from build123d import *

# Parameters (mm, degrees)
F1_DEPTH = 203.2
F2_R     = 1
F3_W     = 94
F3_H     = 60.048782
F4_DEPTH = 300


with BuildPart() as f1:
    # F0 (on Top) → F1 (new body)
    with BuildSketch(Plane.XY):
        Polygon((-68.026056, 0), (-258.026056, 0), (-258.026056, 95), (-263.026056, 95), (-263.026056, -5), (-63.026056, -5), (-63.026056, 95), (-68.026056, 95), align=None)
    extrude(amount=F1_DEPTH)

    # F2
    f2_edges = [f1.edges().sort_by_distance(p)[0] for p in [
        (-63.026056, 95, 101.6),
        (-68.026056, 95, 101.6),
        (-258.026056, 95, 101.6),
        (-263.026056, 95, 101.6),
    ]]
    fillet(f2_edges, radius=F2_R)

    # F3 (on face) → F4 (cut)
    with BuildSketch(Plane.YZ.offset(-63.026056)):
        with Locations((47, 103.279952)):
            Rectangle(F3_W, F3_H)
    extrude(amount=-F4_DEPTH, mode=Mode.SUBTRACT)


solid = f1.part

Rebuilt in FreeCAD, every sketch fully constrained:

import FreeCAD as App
import Part
import Sketcher

V = App.Vector
Q = App.Units.Quantity


def edges_at(feature, points):
    """Names of the edges that pass closest to the given points."""
    edges = feature.Shape.Edges
    near = lambda p: min(range(len(edges)), key=lambda i: edges[i].distToShape(Part.Vertex(*p))[0])
    return sorted({f"Edge{near(p) + 1}" for p in points})

doc = App.newDocument("Part")
body = doc.addObject("PartDesign::Body", "Body")

sketch1 = doc.addObject("Sketcher::SketchObject", "Sketch")
body.addObject(sketch1)
sketch1.AttachmentSupport = (doc.XY_Plane, [""])
sketch1.MapMode = "FlatFace"
sketch1.addGeometry([
    Part.LineSegment(V(-68, 0, 0), V(-258, 0, 0)),
    Part.LineSegment(V(-258, 0, 0), V(-258, 95, 0)),
    Part.LineSegment(V(-258, 95, 0), V(-263, 95, 0)),
    Part.LineSegment(V(-263, 95, 0), V(-263, -5, 0)),
    Part.LineSegment(V(-263, -5, 0), V(-63, -5, 0)),
    Part.LineSegment(V(-63, -5, 0), V(-63, 95, 0)),
    Part.LineSegment(V(-63, 95, 0), V(-68, 95, 0)),
    Part.LineSegment(V(-68, 95, 0), V(-68, 0, 0)),
], False)
sketch1.addConstraint([
    Sketcher.Constraint("Coincident", 0, 2, 1, 1),
    Sketcher.Constraint("Coincident", 1, 2, 2, 1),
    Sketcher.Constraint("Coincident", 2, 2, 3, 1),
    Sketcher.Constraint("Coincident", 3, 2, 4, 1),
    Sketcher.Constraint("Coincident", 4, 2, 5, 1),
    Sketcher.Constraint("Coincident", 5, 2, 6, 1),
    Sketcher.Constraint("Coincident", 6, 2, 7, 1),
    Sketcher.Constraint("Coincident", 7, 2, 0, 1),
    Sketcher.Constraint("Horizontal", 0),
    Sketcher.Constraint("Vertical", 1),
    Sketcher.Constraint("Horizontal", 2),
    Sketcher.Constraint("Vertical", 3),
    Sketcher.Constraint("Horizontal", 4),
    Sketcher.Constraint("Vertical", 5),
    Sketcher.Constraint("Horizontal", 6),
    Sketcher.Constraint("Vertical", 7),
    Sketcher.Constraint("PointOnObject", 0, 2, -1),
    Sketcher.Constraint("Horizontal", 2, 2, 5, 2),
    Sketcher.Constraint("Equal", 2, 6),
    Sketcher.Constraint("DistanceX", 0, 2, 0, 1, Q("190 mm")),
    Sketcher.Constraint("DistanceX", 2, 2, 2, 1, Q("5 mm")),
    Sketcher.Constraint("DistanceY", 1, 1, 1, 2, Q("95 mm")),
    Sketcher.Constraint("DistanceY", 3, 2, 3, 1, Q("100 mm")),
    Sketcher.Constraint("DistanceX", 0, 2, -1, 1, Q("258.026056 mm")),
])
pad1 = doc.addObject("PartDesign::Pad", "Pad")
body.addObject(pad1)
pad1.Profile = sketch1
pad1.Length = 203.2
doc.recompute()

fillet = doc.addObject("PartDesign::Fillet", "Fillet")
body.addObject(fillet)
fillet.Base = (pad1, edges_at(pad1, [
    (-63.026, 95, 101.6),
    (-68.026, 95, 101.6),
    (-258.026, 95, 101.6),
    (-263.026, 95, 101.6),
]))
fillet.Radius = 1

sketch2 = doc.addObject("Sketcher::SketchObject", "Sketch001")
body.addObject(sketch2)
sketch2.AttachmentSupport = (doc.YZ_Plane, [""])
sketch2.MapMode = "FlatFace"
sketch2.AttachmentOffset = App.Placement(V(0, 0, -63.026056), App.Rotation())
sketch2.addGeometry([
    Part.LineSegment(V(0, 133, 0), V(0, 73, 0)),
    Part.LineSegment(V(0, 73, 0), V(94, 73, 0)),
    Part.LineSegment(V(94, 73, 0), V(94, 133, 0)),
    Part.LineSegment(V(94, 133, 0), V(0, 133, 0)),
], False)
sketch2.addConstraint([
    Sketcher.Constraint("Coincident", 0, 2, 1, 1),
    Sketcher.Constraint("Coincident", 1, 2, 2, 1),
    Sketcher.Constraint("Coincident", 2, 2, 3, 1),
    Sketcher.Constraint("Coincident", 3, 2, 0, 1),
    Sketcher.Constraint("Vertical", 0),
    Sketcher.Constraint("Horizontal", 1),
    Sketcher.Constraint("Vertical", 2),
    Sketcher.Constraint("Horizontal", 3),
    Sketcher.Constraint("PointOnObject", 0, 2, -2),
    Sketcher.Constraint("DistanceX", 1, 1, 1, 2, Q("94 mm")),
    Sketcher.Constraint("DistanceY", 0, 2, 0, 1, Q("60.048782 mm")),
    Sketcher.Constraint("DistanceY", -1, 1, 0, 2, Q("73.255561 mm")),
])
pocket1 = doc.addObject("PartDesign::Pocket", "Pocket")
body.addObject(pocket1)
pocket1.Profile = sketch2
pocket1.Length = 300

doc.recompute()
